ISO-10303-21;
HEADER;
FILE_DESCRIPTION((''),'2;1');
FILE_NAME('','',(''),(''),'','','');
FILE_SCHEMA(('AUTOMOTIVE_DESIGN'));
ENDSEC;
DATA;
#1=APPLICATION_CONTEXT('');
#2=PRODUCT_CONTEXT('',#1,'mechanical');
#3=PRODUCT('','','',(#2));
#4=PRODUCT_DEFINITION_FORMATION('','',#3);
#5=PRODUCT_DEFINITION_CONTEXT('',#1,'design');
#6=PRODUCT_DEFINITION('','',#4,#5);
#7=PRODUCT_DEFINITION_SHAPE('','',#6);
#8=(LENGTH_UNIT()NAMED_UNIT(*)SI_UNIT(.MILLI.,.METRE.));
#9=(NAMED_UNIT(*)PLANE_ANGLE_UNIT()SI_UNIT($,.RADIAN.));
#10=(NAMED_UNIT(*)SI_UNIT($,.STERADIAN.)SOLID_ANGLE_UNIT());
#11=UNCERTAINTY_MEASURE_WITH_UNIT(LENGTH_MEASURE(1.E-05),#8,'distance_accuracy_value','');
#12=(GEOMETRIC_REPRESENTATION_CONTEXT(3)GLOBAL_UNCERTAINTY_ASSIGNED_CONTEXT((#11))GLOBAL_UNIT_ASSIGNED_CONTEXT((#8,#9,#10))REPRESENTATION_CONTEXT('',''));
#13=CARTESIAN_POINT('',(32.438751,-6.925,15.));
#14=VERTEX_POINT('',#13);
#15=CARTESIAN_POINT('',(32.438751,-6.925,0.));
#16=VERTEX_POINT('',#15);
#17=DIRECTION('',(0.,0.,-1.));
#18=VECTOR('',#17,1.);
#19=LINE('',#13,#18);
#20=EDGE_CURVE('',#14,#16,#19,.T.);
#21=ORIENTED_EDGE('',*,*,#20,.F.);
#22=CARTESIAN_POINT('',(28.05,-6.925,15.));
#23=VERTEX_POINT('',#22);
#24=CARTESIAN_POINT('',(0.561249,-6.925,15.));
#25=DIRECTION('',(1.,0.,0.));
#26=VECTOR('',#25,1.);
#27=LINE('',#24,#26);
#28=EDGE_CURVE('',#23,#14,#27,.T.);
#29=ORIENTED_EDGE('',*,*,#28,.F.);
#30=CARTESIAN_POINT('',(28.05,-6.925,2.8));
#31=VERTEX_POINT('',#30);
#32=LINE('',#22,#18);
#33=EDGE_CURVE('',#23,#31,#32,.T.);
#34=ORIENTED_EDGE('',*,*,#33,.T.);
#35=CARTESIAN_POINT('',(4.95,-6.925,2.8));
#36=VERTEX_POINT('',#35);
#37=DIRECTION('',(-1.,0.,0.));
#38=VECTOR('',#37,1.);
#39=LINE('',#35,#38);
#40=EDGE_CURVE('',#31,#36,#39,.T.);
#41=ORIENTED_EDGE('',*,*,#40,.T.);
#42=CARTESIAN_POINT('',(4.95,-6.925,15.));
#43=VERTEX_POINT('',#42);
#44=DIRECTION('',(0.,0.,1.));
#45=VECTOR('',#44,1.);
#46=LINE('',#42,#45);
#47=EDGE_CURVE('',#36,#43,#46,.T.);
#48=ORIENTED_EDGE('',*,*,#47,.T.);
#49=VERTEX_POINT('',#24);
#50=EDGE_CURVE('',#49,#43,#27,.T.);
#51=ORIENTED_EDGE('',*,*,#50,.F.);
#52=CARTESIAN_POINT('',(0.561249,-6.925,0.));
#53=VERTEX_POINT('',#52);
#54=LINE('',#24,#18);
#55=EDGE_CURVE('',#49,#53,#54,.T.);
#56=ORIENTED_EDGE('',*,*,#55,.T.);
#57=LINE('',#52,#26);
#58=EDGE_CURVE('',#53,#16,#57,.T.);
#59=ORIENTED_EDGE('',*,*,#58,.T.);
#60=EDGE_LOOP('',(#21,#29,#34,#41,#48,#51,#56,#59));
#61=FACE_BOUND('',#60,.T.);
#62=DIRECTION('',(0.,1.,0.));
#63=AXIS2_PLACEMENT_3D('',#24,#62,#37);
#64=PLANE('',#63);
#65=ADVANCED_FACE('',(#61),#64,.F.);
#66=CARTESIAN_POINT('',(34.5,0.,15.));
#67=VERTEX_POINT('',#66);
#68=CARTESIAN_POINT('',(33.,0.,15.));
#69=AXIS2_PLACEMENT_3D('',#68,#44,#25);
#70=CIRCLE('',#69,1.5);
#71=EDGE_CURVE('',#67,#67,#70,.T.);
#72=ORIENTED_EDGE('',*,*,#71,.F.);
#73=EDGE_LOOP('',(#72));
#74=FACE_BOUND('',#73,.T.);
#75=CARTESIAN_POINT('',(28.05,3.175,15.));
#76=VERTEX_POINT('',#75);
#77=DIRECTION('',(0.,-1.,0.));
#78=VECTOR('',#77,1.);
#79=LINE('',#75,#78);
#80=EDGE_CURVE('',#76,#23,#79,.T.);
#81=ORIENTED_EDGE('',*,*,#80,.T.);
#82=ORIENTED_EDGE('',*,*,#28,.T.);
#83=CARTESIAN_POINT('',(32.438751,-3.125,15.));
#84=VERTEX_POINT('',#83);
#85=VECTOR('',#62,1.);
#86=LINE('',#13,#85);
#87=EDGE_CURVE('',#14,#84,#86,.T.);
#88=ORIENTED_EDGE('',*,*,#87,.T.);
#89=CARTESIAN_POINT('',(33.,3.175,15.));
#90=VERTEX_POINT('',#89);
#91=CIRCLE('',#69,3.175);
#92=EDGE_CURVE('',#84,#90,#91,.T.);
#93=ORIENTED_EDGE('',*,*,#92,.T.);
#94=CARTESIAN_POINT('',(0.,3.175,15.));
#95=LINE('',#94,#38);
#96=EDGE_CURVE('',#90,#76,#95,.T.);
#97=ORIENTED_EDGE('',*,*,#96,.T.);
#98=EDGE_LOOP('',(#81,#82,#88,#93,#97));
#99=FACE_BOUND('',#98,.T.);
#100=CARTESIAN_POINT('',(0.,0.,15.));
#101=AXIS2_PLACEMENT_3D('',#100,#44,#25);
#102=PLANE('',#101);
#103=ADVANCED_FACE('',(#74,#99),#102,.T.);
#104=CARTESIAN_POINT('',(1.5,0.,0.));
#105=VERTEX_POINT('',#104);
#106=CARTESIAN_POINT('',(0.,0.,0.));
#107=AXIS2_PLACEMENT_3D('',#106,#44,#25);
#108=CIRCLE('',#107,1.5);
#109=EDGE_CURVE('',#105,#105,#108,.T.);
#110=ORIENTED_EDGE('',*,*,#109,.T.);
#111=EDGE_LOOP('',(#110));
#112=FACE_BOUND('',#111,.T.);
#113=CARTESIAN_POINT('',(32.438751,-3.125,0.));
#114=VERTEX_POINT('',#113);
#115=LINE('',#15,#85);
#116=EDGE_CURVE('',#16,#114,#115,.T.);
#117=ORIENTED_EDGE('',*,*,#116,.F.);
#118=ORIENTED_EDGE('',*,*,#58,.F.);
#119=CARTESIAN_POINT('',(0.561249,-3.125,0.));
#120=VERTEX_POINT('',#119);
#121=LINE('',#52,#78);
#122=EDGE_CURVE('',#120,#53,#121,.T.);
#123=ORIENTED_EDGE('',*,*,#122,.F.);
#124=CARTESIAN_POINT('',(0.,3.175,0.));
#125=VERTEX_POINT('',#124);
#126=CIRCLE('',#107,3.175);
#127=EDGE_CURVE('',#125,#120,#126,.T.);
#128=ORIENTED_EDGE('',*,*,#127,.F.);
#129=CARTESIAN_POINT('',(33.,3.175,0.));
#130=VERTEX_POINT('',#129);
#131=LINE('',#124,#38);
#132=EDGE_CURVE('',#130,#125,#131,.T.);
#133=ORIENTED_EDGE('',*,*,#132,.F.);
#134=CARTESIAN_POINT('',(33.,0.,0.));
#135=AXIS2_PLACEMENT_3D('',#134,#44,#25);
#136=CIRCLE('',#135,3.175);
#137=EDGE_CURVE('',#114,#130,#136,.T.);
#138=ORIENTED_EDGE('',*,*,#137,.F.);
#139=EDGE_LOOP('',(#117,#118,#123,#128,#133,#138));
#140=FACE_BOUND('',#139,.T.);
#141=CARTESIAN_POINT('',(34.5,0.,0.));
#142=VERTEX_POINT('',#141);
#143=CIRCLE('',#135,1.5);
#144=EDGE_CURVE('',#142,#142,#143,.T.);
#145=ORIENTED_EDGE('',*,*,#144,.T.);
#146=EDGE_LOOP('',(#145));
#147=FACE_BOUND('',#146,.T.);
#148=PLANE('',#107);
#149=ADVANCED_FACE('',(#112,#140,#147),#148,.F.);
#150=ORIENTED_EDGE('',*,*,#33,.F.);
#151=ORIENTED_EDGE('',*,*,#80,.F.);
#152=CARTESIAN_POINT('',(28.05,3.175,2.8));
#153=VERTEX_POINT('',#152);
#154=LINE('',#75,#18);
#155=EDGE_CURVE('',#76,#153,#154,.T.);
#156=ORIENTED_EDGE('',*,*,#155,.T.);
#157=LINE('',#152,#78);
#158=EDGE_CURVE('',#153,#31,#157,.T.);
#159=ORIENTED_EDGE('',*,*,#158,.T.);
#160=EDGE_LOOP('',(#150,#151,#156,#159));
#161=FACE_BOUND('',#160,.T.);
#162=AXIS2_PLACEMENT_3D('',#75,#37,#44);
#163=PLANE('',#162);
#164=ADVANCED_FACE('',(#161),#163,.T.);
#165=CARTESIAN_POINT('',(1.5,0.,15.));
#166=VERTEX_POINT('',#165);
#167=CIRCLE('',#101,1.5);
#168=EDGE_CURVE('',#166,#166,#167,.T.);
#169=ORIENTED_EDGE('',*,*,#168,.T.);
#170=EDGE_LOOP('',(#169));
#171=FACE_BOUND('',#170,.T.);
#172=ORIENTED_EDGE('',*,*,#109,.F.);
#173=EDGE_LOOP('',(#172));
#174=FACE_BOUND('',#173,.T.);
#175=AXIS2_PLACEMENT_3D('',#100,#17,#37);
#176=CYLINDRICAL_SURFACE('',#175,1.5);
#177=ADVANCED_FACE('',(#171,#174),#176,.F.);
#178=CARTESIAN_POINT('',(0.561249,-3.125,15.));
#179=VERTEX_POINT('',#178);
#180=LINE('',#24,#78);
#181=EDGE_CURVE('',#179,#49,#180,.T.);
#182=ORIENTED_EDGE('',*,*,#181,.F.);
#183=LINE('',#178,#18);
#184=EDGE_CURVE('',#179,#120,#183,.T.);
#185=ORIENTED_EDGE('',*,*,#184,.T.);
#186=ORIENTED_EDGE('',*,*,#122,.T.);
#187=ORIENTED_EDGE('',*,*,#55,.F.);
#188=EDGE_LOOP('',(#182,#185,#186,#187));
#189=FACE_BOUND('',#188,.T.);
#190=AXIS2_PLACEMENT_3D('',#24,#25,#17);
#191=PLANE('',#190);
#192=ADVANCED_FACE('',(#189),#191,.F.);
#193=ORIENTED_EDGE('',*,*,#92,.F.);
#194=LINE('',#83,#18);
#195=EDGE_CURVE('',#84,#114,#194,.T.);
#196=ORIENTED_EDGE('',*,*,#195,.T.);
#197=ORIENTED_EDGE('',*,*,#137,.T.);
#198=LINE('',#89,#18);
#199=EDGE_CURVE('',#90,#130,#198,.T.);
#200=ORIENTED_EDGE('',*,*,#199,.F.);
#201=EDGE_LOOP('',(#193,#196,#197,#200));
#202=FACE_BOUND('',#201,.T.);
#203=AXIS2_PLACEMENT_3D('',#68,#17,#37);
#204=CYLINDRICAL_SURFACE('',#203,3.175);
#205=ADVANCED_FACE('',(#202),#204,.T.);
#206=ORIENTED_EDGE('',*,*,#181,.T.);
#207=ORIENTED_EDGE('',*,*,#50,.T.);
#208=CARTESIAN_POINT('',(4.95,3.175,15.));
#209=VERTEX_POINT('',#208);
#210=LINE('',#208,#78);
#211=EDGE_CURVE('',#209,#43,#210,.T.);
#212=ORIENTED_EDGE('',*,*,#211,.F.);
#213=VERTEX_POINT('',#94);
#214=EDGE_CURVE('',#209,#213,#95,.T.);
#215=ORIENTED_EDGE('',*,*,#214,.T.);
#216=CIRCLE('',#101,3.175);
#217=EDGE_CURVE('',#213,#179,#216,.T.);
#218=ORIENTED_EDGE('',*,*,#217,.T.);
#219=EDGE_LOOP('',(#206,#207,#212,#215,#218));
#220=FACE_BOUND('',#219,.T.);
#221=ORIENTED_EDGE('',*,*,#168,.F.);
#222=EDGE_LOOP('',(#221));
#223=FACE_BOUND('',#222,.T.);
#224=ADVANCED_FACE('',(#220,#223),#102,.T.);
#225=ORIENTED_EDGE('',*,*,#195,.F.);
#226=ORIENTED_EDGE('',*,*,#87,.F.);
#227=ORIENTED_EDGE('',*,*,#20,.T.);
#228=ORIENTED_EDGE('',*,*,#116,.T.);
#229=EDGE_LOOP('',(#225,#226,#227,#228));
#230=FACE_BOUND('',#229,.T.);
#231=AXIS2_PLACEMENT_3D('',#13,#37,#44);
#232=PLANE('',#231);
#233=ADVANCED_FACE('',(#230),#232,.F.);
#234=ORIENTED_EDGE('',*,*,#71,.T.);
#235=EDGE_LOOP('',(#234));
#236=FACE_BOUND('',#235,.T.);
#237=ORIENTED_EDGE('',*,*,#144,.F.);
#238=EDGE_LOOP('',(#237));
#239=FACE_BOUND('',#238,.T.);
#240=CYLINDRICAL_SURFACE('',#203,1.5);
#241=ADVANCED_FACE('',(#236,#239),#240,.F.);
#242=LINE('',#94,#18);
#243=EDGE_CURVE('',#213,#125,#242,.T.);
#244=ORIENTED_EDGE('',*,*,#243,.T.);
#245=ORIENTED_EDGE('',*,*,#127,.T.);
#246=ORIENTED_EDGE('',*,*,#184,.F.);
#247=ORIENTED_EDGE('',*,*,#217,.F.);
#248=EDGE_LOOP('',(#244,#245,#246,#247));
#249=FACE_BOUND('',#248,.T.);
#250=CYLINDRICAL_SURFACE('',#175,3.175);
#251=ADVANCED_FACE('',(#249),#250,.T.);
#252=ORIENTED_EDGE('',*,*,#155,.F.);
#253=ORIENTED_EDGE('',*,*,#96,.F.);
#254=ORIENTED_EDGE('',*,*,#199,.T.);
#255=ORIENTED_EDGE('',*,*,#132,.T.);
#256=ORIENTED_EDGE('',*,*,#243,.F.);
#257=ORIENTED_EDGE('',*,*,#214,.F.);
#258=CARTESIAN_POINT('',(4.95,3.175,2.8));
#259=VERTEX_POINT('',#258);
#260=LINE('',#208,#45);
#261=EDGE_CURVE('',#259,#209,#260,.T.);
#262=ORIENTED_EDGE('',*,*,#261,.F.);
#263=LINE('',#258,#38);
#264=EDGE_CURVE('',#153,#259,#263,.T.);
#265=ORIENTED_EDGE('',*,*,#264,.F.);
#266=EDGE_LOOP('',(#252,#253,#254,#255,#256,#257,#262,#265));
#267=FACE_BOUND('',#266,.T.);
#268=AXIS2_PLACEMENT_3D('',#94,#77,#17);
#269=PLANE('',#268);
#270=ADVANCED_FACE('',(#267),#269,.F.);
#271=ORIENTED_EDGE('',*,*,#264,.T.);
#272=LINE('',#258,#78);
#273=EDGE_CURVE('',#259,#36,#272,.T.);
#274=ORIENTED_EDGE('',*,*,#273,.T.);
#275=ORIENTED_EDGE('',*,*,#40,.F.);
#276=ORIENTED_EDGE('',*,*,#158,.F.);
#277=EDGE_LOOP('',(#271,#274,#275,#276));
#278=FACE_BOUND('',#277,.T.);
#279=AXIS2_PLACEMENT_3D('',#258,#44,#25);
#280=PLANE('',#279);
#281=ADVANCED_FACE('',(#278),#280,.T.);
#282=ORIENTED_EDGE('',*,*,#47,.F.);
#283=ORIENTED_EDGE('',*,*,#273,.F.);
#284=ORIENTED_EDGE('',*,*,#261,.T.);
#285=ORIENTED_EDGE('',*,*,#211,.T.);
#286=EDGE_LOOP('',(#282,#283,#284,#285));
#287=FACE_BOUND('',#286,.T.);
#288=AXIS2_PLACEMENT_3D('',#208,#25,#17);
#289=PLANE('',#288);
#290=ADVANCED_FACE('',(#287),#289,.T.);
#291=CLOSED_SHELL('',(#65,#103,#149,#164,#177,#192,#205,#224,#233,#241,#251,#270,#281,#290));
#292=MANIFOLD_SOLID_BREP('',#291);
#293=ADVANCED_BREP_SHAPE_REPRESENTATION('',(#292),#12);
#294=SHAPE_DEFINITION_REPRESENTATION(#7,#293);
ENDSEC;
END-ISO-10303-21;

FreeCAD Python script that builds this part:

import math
import FreeCAD as App
import Part
import Sketcher

V = App.Vector
Q = App.Units.Quantity

doc = App.newDocument("Part")
body = doc.addObject("PartDesign::Body", "Body")

# Sketch on XY plane
sketch1 = body.newObject("Sketcher::SketchObject", "Sketch")
sketch1.AttachmentSupport = (doc.getObject("XY_Plane"), [""])
sketch1.MapMode = "FlatFace"
sketch1.addGeometry([
    Part.LineSegment(V(33, 3.175, 0), V(0, 3.175, 0)),  # 0
    Part.ArcOfCircle(Part.Circle(V(0, 0, 0), V(0, 0, 1), 3.175), math.radians(90), math.radians(280.181748)),  # 1
    Part.LineSegment(V(0.561249, -3.125, 0), V(0.561249, -6.925, 0)),  # 2
    Part.LineSegment(V(0.561249, -6.925, 0), V(32.438751, -6.925, 0)),  # 3
    Part.LineSegment(V(32.438751, -6.925, 0), V(32.438751, -3.125, 0)),  # 4
    Part.ArcOfCircle(Part.Circle(V(33, 0, 0), V(0, 0, 1), 3.175), math.radians(-100.181748), math.radians(90)),  # 5
    Part.Circle(V(33, 0, 0), V(0, 0, 1), 1.5),  # 6
    Part.Circle(V(0, 0, 0), V(0, 0, 1), 1.5),  # 7
], False)
sketch1.addConstraint([
    Sketcher.Constraint("Tangent", 0, 2, 1, 1),
    Sketcher.Constraint("Coincident", 1, 2, 2, 1),
    Sketcher.Constraint("Coincident", 2, 2, 3, 1),
    Sketcher.Constraint("Coincident", 3, 2, 4, 1),
    Sketcher.Constraint("Coincident", 4, 2, 5, 1),
    Sketcher.Constraint("Tangent", 5, 2, 0, 1),
    Sketcher.Constraint("Horizontal", 0),
    Sketcher.Constraint("Vertical", 2),
    Sketcher.Constraint("Horizontal", 3),
    Sketcher.Constraint("Vertical", 4),
    Sketcher.Constraint("Coincident", 1, 3, -1, 1),
    Sketcher.Constraint("Coincident", 7, 3, -1, 1),
    Sketcher.Constraint("Coincident", 6, 3, 5, 3),
    Sketcher.Constraint("Equal", 1, 5),
    Sketcher.Constraint("Equal", 6, 7),
    Sketcher.Constraint("Horizontal", 1, 2, 4, 2),
    Sketcher.Constraint("Diameter", 6, Q("3 mm")),
    Sketcher.Constraint("DistanceX", 0, 2, 0, 1, Q("33 mm")),
    Sketcher.Constraint("DistanceY", 2, 2, 2, 1, Q("3.8 mm")),
    Sketcher.Constraint("Radius", 1, Q("3.175 mm")),
    Sketcher.Constraint("DistanceY", 1, 2, 0, 2, Q("6.3 mm")),
])
pad1 = body.newObject("PartDesign::Pad", "Pad")
pad1.Profile = sketch1
pad1.Length = 15

# Sketch on XZ plane
sketch2 = body.newObject("Sketcher::SketchObject", "Sketch001")
sketch2.AttachmentSupport = (doc.getObject("XZ_Plane"), [""])
sketch2.MapMode = "FlatFace"
sketch2.addGeometry([
    Part.LineSegment(V(4.95, 2.8, 0), V(4.95, 15, 0)),
    Part.LineSegment(V(4.95, 15, 0), V(28.05, 15, 0)),
    Part.LineSegment(V(28.05, 15, 0), V(28.05, 2.8, 0)),
    Part.LineSegment(V(28.05, 2.8, 0), V(4.95, 2.8, 0)),
], False)
sketch2.addConstraint([
    Sketcher.Constraint("Coincident", 0, 2, 1, 1),
    Sketcher.Constraint("Coincident", 1, 2, 2, 1),
    Sketcher.Constraint("Coincident", 2, 2, 3, 1),
    Sketcher.Constraint("Coincident", 3, 2, 0, 1),
    Sketcher.Constraint("Vertical", 0),
    Sketcher.Constraint("Horizontal", 1),
    Sketcher.Constraint("Vertical", 2),
    Sketcher.Constraint("Horizontal", 3),
    Sketcher.Constraint("DistanceX", 1, 1, 1, 2, Q("23.1 mm")),
    Sketcher.Constraint("DistanceY", 0, 1, 0, 2, Q("12.2 mm")),
    Sketcher.Constraint("DistanceY", -1, 1, 0, 2, Q("15 mm")),
    Sketcher.Constraint("DistanceX", -1, 1, 0, 2, Q("4.95 mm")),
])
pocket1 = body.newObject("PartDesign::Pocket", "Pocket")
pocket1.Profile = sketch2
pocket1.Type = "ThroughAll"
pocket1.Midplane = True

doc.recompute()
